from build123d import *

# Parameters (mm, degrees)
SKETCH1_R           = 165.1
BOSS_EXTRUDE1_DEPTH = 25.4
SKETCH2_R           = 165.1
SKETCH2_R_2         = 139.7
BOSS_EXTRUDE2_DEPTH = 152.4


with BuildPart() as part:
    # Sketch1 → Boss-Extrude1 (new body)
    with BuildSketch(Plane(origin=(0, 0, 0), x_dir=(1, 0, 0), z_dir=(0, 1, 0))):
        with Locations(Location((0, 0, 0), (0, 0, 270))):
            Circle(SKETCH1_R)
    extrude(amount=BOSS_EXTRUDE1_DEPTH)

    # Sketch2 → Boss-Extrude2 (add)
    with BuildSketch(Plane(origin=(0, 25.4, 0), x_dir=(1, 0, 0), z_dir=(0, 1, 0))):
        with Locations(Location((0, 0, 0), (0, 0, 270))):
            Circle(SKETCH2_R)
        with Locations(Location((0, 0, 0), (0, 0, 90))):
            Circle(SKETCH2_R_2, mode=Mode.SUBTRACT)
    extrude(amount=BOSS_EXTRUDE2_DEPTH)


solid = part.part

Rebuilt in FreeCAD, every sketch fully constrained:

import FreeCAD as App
import Part
import Sketcher
from FreeCAD import Vector
Q = App.Units.Quantity

doc = App.newDocument("Part")
params = doc.addObject("Spreadsheet::Sheet", "Params")
for row, (alias, value) in enumerate([
    ("sketch1_diameter", "13 in"),
    ("pad1_length", "1 in"),
    ("sketch2_diameter", "13 in"),
    ("sketch2_diameter2", "11 in"),
    ("pad2_length", "6 in"),
], start=1):
    params.set(f"A{row}", alias)
    params.set(f"B{row}", "=" + value)
    params.setAlias(f"B{row}", alias)

body = doc.addObject("PartDesign::Body", "Body")

sketch1 = body.newObject("Sketcher::SketchObject", "Sketch")
sketch1.AttachmentSupport = (doc.getObject("XZ_Plane"), [""])
sketch1.MapMode = "FlatFace"
sketch1.addGeometry(Part.Circle(Vector(0, 0, 0), Vector(0, 0, 1), 165), False)
sketch1.addConstraint(Sketcher.Constraint("Coincident", 0, 3, -1, 1))
sketch1.addConstraint(Sketcher.Constraint("Diameter", 0, Q("13 in")))
sketch1.setExpression("Constraints[1]", "Params.sketch1_diameter")
pad1 = body.newObject("PartDesign::Pad", "Pad")
pad1.Profile = sketch1
pad1.setExpression("Length", "Params.pad1_length")
pad1.Reversed = True

sketch2 = body.newObject("Sketcher::SketchObject", "Sketch001")
sketch2.AttachmentSupport = (doc.getObject("XZ_Plane"), [""])
sketch2.MapMode = "FlatFace"
sketch2.AttachmentOffset = App.Placement(Vector(0, 0, -1 * 25.4), App.Rotation())
sketch2.addGeometry(Part.Circle(Vector(0, 0, 0), Vector(0, 0, 1), 165), False)
sketch2.addGeometry(Part.Circle(Vector(0, 0, 0), Vector(0, 0, 1), 140), False)
sketch2.addConstraint(Sketcher.Constraint("Coincident", 0, 3, -1, 1))
sketch2.addConstraint(Sketcher.Constraint("Coincident", 1, 3, -1, 1))
sketch2.addConstraint(Sketcher.Constraint("Diameter", 0, Q("13 in")))
sketch2.addConstraint(Sketcher.Constraint("Diameter", 1, Q("11 in")))
sketch2.setExpression("Constraints[2]", "Params.sketch2_diameter")
sketch2.setExpression("Constraints[3]", "Params.sketch2_diameter2")
pad2 = body.newObject("PartDesign::Pad", "Pad001")
pad2.Profile = sketch2
pad2.setExpression("Length", "Params.pad2_length")
pad2.Reversed = True

doc.recompute()
